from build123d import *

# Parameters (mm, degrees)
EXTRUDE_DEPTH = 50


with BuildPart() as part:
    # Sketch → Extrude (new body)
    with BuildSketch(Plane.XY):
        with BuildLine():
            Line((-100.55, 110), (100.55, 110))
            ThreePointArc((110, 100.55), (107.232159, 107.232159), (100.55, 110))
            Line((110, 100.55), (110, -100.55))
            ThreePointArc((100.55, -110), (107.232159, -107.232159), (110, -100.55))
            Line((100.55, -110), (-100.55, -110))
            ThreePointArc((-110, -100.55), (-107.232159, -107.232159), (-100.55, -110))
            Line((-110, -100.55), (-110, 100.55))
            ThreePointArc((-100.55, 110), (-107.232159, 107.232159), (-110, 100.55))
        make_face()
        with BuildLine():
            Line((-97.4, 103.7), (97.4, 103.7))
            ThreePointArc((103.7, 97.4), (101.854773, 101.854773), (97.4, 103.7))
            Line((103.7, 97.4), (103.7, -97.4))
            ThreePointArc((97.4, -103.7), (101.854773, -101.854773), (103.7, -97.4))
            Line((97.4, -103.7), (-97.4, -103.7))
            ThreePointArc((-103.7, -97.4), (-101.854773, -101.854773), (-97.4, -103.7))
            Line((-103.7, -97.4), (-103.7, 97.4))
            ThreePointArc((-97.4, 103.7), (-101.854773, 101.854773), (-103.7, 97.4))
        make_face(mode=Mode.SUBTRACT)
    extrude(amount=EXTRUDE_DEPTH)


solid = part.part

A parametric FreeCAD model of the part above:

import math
import FreeCAD as App
import Part
import Sketcher

doc = App.newDocument("Part")
body = doc.addObject("PartDesign::Body", "Body")

sketch1 = body.newObject("Sketcher::SketchObject", "Sketch")
sketch1.AttachmentSupport = (doc.getObject("XY_Plane"), [""])
sketch1.MapMode = "FlatFace"
sketch1.addGeometry([
    Part.LineSegment(App.Vector(101, 110, 0), App.Vector(-101, 110, 0)),
    Part.ArcOfCircle(Part.Circle(App.Vector(-101, 101, 0), App.Vector(0, 0, 1), 9), math.radians(90), math.radians(180)),
    Part.LineSegment(App.Vector(-110, 101, 0), App.Vector(-110, -101, 0)),
    Part.ArcOfCircle(Part.Circle(App.Vector(-101, -101, 0), App.Vector(0, 0, 1), 9), math.radians(-180), math.radians(-90)),
    Part.LineSegment(App.Vector(-101, -110, 0), App.Vector(101, -110, 0)),
    Part.ArcOfCircle(Part.Circle(App.Vector(101, -101, 0), App.Vector(0, 0, 1), 9), math.radians(-90), math.radians(0)),
    Part.LineSegment(App.Vector(110, -101, 0), App.Vector(110, 101, 0)),
    Part.ArcOfCircle(Part.Circle(App.Vector(101, 101, 0), App.Vector(0, 0, 1), 9), math.radians(0), math.radians(90)),
    Part.LineSegment(App.Vector(-97, 104, 0), App.Vector(97, 104, 0)),
    Part.ArcOfCircle(Part.Circle(App.Vector(97, 97, 0), App.Vector(0, 0, 1), 6), math.radians(0), math.radians(90)),
    Part.LineSegment(App.Vector(104, 97, 0), App.Vector(104, -97, 0)),
    Part.ArcOfCircle(Part.Circle(App.Vector(97, -97, 0), App.Vector(0, 0, 1), 6), math.radians(-90), math.radians(0)),
    Part.LineSegment(App.Vector(97, -104, 0), App.Vector(-97, -104, 0)),
    Part.ArcOfCircle(Part.Circle(App.Vector(-97, -97, 0), App.Vector(0, 0, 1), 6), math.radians(180), math.radians(270)),
    Part.LineSegment(App.Vector(-104, -97, 0), App.Vector(-104, 97, 0)),
    Part.ArcOfCircle(Part.Circle(App.Vector(-97, 97, 0), App.Vector(0, 0, 1), 6), math.radians(90), math.radians(180)),
], False)
sketch1.addConstraint([
    Sketcher.Constraint("Tangent", 0, 2, 1, 1),
    Sketcher.Constraint("Tangent", 1, 2, 2, 1),
    Sketcher.Constraint("Tangent", 2, 2, 3, 1),
    Sketcher.Constraint("Tangent", 3, 2, 4, 1),
    Sketcher.Constraint("Tangent", 4, 2, 5, 1),
    Sketcher.Constraint("Tangent", 5, 2, 6, 1),
    Sketcher.Constraint("Tangent", 6, 2, 7, 1),
    Sketcher.Constraint("Tangent", 7, 2, 0, 1),
    Sketcher.Constraint("Tangent", 8, 2, 9, 2),
    Sketcher.Constraint("Tangent", 9, 1, 10, 1),
    Sketcher.Constraint("Tangent", 10, 2, 11, 2),
    Sketcher.Constraint("Tangent", 11, 1, 12, 1),
    Sketcher.Constraint("Tangent", 12, 2, 13, 2),
    Sketcher.Constraint("Tangent", 13, 1, 14, 1),
    Sketcher.Constraint("Tangent", 14, 2, 15, 2),
    Sketcher.Constraint("Tangent", 15, 1, 8, 1),
    Sketcher.Constraint("Horizontal", 0),
    Sketcher.Constraint("Vertical", 2),
    Sketcher.Constraint("Horizontal", 4),
    Sketcher.Constraint("Vertical", 6),
    Sketcher.Constraint("Horizontal", 8),
    Sketcher.Constraint("Vertical", 10),
    Sketcher.Constraint("Horizontal", 12),
    Sketcher.Constraint("Vertical", 14),
    Sketcher.Constraint("Equal", 1, 3),
    Sketcher.Constraint("Equal", 3, 5),
    Sketcher.Constraint("Equal", 5, 7),
    Sketcher.Constraint("Equal", 9, 11),
    Sketcher.Constraint("Equal", 11, 13),
    Sketcher.Constraint("Equal", 13, 15),
    Sketcher.Constraint("Symmetric", 1, 3, 5, 3, -1, 1),
    Sketcher.Constraint("Symmetric", 9, 3, 13, 3, -1, 1),
    Sketcher.Constraint("Equal", 4, 2),
    Sketcher.Constraint("Equal", 12, 10),
    Sketcher.Constraint("Radius", 9, 6.299999),
    Sketcher.Constraint("Radius", 1, 9.45),
    Sketcher.Constraint("DistanceX", 0, 2, 0, 1, 201.1),
    Sketcher.Constraint("DistanceX", 8, 1, 8, 2, 194.8),
])
pad1 = body.newObject("PartDesign::Pad", "Pad")
pad1.Profile = sketch1
pad1.Length = 50

doc.recompute()
